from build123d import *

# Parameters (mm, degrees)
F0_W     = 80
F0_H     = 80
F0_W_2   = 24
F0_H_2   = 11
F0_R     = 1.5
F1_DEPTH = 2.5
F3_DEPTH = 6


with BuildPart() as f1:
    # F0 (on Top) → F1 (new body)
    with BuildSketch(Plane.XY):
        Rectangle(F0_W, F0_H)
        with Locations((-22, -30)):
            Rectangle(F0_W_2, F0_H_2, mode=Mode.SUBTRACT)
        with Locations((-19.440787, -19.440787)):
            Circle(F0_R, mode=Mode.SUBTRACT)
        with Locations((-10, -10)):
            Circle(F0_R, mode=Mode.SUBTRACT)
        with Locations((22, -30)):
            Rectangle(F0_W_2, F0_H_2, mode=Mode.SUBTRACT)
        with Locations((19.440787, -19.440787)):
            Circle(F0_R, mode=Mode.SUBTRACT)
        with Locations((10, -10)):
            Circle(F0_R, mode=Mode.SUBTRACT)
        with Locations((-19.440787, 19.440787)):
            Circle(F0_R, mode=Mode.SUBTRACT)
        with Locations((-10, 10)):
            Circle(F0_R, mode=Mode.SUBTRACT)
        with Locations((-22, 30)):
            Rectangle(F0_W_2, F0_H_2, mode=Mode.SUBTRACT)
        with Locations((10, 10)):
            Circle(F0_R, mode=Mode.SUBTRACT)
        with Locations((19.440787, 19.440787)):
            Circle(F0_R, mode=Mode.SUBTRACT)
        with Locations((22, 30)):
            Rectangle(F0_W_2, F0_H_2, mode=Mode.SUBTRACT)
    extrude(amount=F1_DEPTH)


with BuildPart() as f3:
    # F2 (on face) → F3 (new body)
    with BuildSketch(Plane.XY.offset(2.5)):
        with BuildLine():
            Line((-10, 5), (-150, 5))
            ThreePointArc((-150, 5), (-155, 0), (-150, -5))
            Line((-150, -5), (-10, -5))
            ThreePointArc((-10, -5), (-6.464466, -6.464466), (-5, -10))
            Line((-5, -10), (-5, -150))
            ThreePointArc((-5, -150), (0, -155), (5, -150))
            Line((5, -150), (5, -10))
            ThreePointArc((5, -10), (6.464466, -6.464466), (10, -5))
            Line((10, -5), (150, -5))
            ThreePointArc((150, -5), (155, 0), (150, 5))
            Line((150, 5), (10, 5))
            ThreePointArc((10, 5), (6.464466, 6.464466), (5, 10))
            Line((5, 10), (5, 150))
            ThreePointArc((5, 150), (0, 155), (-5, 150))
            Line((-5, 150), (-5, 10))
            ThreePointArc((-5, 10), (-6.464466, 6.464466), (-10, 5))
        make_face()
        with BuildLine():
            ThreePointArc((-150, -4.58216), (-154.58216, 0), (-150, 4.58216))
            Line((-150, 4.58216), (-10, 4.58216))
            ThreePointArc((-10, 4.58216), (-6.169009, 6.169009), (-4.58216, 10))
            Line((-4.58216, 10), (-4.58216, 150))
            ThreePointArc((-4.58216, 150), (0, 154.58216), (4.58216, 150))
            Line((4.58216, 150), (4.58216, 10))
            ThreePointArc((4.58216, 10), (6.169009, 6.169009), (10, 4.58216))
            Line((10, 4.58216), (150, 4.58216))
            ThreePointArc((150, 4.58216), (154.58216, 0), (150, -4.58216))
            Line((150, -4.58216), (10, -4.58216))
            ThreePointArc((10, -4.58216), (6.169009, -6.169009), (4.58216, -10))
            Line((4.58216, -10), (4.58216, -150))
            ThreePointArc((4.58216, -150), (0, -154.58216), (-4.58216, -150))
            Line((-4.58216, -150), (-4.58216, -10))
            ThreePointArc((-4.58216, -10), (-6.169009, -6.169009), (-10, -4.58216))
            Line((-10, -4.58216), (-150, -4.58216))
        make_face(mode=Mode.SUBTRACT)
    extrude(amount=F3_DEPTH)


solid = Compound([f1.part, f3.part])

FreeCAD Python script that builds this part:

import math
import FreeCAD as App
import Part
import Sketcher

V = App.Vector

doc = App.newDocument("Part")
body = doc.addObject("PartDesign::Body", "Body")

# Sketch on XY plane
sketch1 = body.newObject("Sketcher::SketchObject", "Sketch")
sketch1.AttachmentSupport = (doc.getObject("XY_Plane"), [""])
sketch1.MapMode = "FlatFace"
sketch1.addGeometry([
    Part.LineSegment(V(-40, 40, 0), V(-40, -40, 0)),  # 0
    Part.LineSegment(V(-40, -40, 0), V(40, -40, 0)),  # 1
    Part.LineSegment(V(40, -40, 0), V(40, 40, 0)),  # 2
    Part.LineSegment(V(40, 40, 0), V(-40, 40, 0)),  # 3
    Part.LineSegment(V(-10, -35.5, 0), V(-34, -35.5, 0)),  # 4
    Part.LineSegment(V(-34, -35.5, 0), V(-34, -24.5, 0)),  # 5
    Part.LineSegment(V(-34, -24.5, 0), V(-10, -24.5, 0)),  # 6
    Part.LineSegment(V(-10, -24.5, 0), V(-10, -35.5, 0)),  # 7
    Part.Circle(V(-19.4, -19.4, 0), V(0, 0, 1), 1.5),  # 8
    Part.Circle(V(-10, -10, 0), V(0, 0, 1), 1.5),  # 9
    Part.LineSegment(V(34, -35.5, 0), V(10, -35.5, 0)),  # 10
    Part.LineSegment(V(10, -35.5, 0), V(10, -24.5, 0)),  # 11
    Part.LineSegment(V(10, -24.5, 0), V(34, -24.5, 0)),  # 12
    Part.LineSegment(V(34, -24.5, 0), V(34, -35.5, 0)),  # 13
    Part.Circle(V(19.4, -19.4, 0), V(0, 0, 1), 1.5),  # 14
    Part.Circle(V(10, -10, 0), V(0, 0, 1), 1.5),  # 15
    Part.Circle(V(-10, 10, 0), V(0, 0, 1), 1.5),  # 16
    Part.Circle(V(-19.4, 19.4, 0), V(0, 0, 1), 1.5),  # 17
    Part.LineSegment(V(-10, 24.5, 0), V(-34, 24.5, 0)),  # 18
    Part.LineSegment(V(-34, 24.5, 0), V(-34, 35.5, 0)),  # 19
    Part.LineSegment(V(-34, 35.5, 0), V(-10, 35.5, 0)),  # 20
    Part.LineSegment(V(-10, 35.5, 0), V(-10, 24.5, 0)),  # 21
    Part.Circle(V(10, 10, 0), V(0, 0, 1), 1.5),  # 22
    Part.Circle(V(19.4, 19.4, 0), V(0, 0, 1), 1.5),  # 23
    Part.LineSegment(V(34, 24.5, 0), V(10, 24.5, 0)),  # 24
    Part.LineSegment(V(10, 24.5, 0), V(10, 35.5, 0)),  # 25
    Part.LineSegment(V(10, 35.5, 0), V(34, 35.5, 0)),  # 26
    Part.LineSegment(V(34, 35.5, 0), V(34, 24.5, 0)),  # 27
], False)
sketch1.addConstraint([
    Sketcher.Constraint("Coincident", 0, 2, 1, 1),
    Sketcher.Constraint("Coincident", 1, 2, 2, 1),
    Sketcher.Constraint("Coincident", 2, 2, 3, 1),
    Sketcher.Constraint("Coincident", 3, 2, 0, 1),
    Sketcher.Constraint("Coincident", 4, 2, 5, 1),
    Sketcher.Constraint("Coincident", 5, 2, 6, 1),
    Sketcher.Constraint("Coincident", 6, 2, 7, 1),
    Sketcher.Constraint("Coincident", 7, 2, 4, 1),
    Sketcher.Constraint("Coincident", 10, 2, 11, 1),
    Sketcher.Constraint("Coincident", 11, 2, 12, 1),
    Sketcher.Constraint("Coincident", 12, 2, 13, 1),
    Sketcher.Constraint("Coincident", 13, 2, 10, 1),
    Sketcher.Constraint("Coincident", 18, 2, 19, 1),
    Sketcher.Constraint("Coincident", 19, 2, 20, 1),
    Sketcher.Constraint("Coincident", 20, 2, 21, 1),
    Sketcher.Constraint("Coincident", 21, 2, 18, 1),
    Sketcher.Constraint("Coincident", 24, 2, 25, 1),
    Sketcher.Constraint("Coincident", 25, 2, 26, 1),
    Sketcher.Constraint("Coincident", 26, 2, 27, 1),
    Sketcher.Constraint("Coincident", 27, 2, 24, 1),
    Sketcher.Constraint("Vertical", 0),
    Sketcher.Constraint("Horizontal", 1),
    Sketcher.Constraint("Vertical", 2),
    Sketcher.Constraint("Horizontal", 3),
    Sketcher.Constraint("Horizontal", 4),
    Sketcher.Constraint("Vertical", 5),
    Sketcher.Constraint("Horizontal", 6),
    Sketcher.Constraint("Vertical", 7),
    Sketcher.Constraint("Horizontal", 10),
    Sketcher.Constraint("Vertical", 11),
    Sketcher.Constraint("Horizontal", 12),
    Sketcher.Constraint("Vertical", 13),
    Sketcher.Constraint("Horizontal", 18),
    Sketcher.Constraint("Vertical", 19),
    Sketcher.Constraint("Horizontal", 20),
    Sketcher.Constraint("Vertical", 21),
    Sketcher.Constraint("Horizontal", 24),
    Sketcher.Constraint("Vertical", 25),
    Sketcher.Constraint("Horizontal", 26),
    Sketcher.Constraint("Vertical", 27),
    Sketcher.Constraint("Equal", 8, 9),
    Sketcher.Constraint("Equal", 9, 14),
    Sketcher.Constraint("Equal", 14, 15),
    Sketcher.Constraint("Equal", 15, 16),
    Sketcher.Constraint("Equal", 16, 17),
    Sketcher.Constraint("Equal", 17, 22),
    Sketcher.Constraint("Equal", 22, 23),
    Sketcher.Constraint("Symmetric", 15, 3, 16, 3, -1, 1),
    Sketcher.Constraint("Symmetric", 14, 3, 17, 3, -1, 1),
    Sketcher.Constraint("Symmetric", 9, 3, 22, 3, -1, 1),
    Sketcher.Constraint("Symmetric", 8, 3, 23, 3, -1, 1),
    Sketcher.Constraint("Symmetric", 0, 2, 2, 2, -1, 1),
    Sketcher.Constraint("Symmetric", 12, 2, 18, 2, -1, 1),
    Sketcher.Constraint("Symmetric", 10, 2, 20, 2, -1, 1),
    Sketcher.Constraint("Symmetric", 6, 2, 24, 2, -1, 1),
    Sketcher.Constraint("Symmetric", 4, 2, 26, 2, -1, 1),
    Sketcher.Constraint("Symmetric", 8, 3, 14, 3, -2),
    Sketcher.Constraint("Symmetric", 9, 3, 15, 3, -2),
    Sketcher.Constraint("Symmetric", 7, 2, 10, 2, -2),
    Sketcher.Constraint("Symmetric", 5, 2, 12, 2, -2),
    Sketcher.Constraint("Vertical", 16, 3, 6, 2),
    Sketcher.Constraint("Equal", 3, 0),
    Sketcher.Constraint("Diameter", 8, 3.0),
    Sketcher.Constraint("DistanceX", 1, 1, 1, 2, 80.0),
    Sketcher.Constraint("DistanceX", 4, 2, 4, 1, 24.0),
    Sketcher.Constraint("DistanceY", 5, 1, 5, 2, 11.0),
    Sketcher.Constraint("DistanceX", 9, 3, -1, 1, 10.0),
    Sketcher.Constraint("DistanceY", 9, 3, -1, 1, 10.0),
    Sketcher.Constraint("DistanceY", 4, 2, -1, 1, 35.5),
    Sketcher.Constraint("DistanceX", 8, 3, -1, 1, 19.440787),
    Sketcher.Constraint("DistanceY", 8, 3, -1, 1, 19.440787),
])
pad1 = body.newObject("PartDesign::Pad", "Pad")
pad1.Profile = sketch1
pad1.Length = 2.5
body2 = doc.addObject("PartDesign::Body", "Body001")

# Sketch on XY plane
sketch2 = body2.newObject("Sketcher::SketchObject", "Sketch001")
sketch2.AttachmentSupport = (doc.getObject("XY_Plane001"), [""])
sketch2.MapMode = "FlatFace"
sketch2.AttachmentOffset = App.Placement(V(0, 0, 2.5), App.Rotation())
sketch2.addGeometry([
    Part.LineSegment(V(-10, 5, 0), V(-150, 5, 0)),  # 0
    Part.ArcOfCircle(Part.Circle(V(-150, 0, 0), V(0, 0, 1), 5), math.radians(90), math.radians(270)),  # 1
    Part.LineSegment(V(-150, -5, 0), V(-10, -5, 0)),  # 2
    Part.ArcOfCircle(Part.Circle(V(-10, -10, 0), V(0, 0, 1), 5), math.radians(0), math.radians(90)),  # 3
    Part.LineSegment(V(-5, -10, 0), V(-5, -150, 0)),  # 4
    Part.ArcOfCircle(Part.Circle(V(0, -150, 0), V(0, 0, 1), 5), math.radians(180), math.radians(360)),  # 5
    Part.LineSegment(V(5, -150, 0), V(5, -10, 0)),  # 6
    Part.ArcOfCircle(Part.Circle(V(10, -10, 0), V(0, 0, 1), 5), math.radians(90), math.radians(180)),  # 7
    Part.LineSegment(V(10, -5, 0), V(150, -5, 0)),  # 8
    Part.ArcOfCircle(Part.Circle(V(150, 0, 0), V(0, 0, 1), 5), math.radians(-90), math.radians(90)),  # 9
    Part.LineSegment(V(150, 5, 0), V(10, 5, 0)),  # 10
    Part.ArcOfCircle(Part.Circle(V(10, 10, 0), V(0, 0, 1), 5), math.radians(180), math.radians(270)),  # 11
    Part.LineSegment(V(5, 10, 0), V(5, 150, 0)),  # 12
    Part.ArcOfCircle(Part.Circle(V(0, 150, 0), V(0, 0, 1), 5), math.radians(0), math.radians(180)),  # 13
    Part.LineSegment(V(-5, 150, 0), V(-5, 10, 0)),  # 14
    Part.ArcOfCircle(Part.Circle(V(-10, 10, 0), V(0, 0, 1), 5), math.radians(-90), math.radians(0)),  # 15
    Part.LineSegment(V(-10, -4.6, 0), V(-150, -4.6, 0)),  # 16
    Part.ArcOfCircle(Part.Circle(V(-150, 0, 0), V(0, 0, 1), 4.6), math.radians(90), math.radians(270)),  # 17
    Part.LineSegment(V(-150, 4.6, 0), V(-10, 4.6, 0)),  # 18
    Part.ArcOfCircle(Part.Circle(V(-10, 10, 0), V(0, 0, 1), 5.4), math.radians(-90), math.radians(0)),  # 19
    Part.LineSegment(V(-4.6, 10, 0), V(-4.6, 150, 0)),  # 20
    Part.ArcOfCircle(Part.Circle(V(0, 150, 0), V(0, 0, 1), 4.6), math.radians(0), math.radians(180)),  # 21
    Part.LineSegment(V(4.6, 150, 0), V(4.6, 10, 0)),  # 22
    Part.ArcOfCircle(Part.Circle(V(10, 10, 0), V(0, 0, 1), 5.4), math.radians(-180), math.radians(-90)),  # 23
    Part.LineSegment(V(10, 4.6, 0), V(150, 4.6, 0)),  # 24
    Part.ArcOfCircle(Part.Circle(V(150, 0, 0), V(0, 0, 1), 4.6), math.radians(-90), math.radians(90)),  # 25
    Part.LineSegment(V(150, -4.6, 0), V(10, -4.6, 0)),  # 26
    Part.ArcOfCircle(Part.Circle(V(10, -10, 0), V(0, 0, 1), 5.4), math.radians(90), math.radians(180)),  # 27
    Part.LineSegment(V(4.6, -10, 0), V(4.6, -150, 0)),  # 28
    Part.ArcOfCircle(Part.Circle(V(0, -150, 0), V(0, 0, 1), 4.6), math.radians(180), math.radians(360)),  # 29
    Part.LineSegment(V(-4.6, -150, 0), V(-4.6, -10, 0)),  # 30
    Part.ArcOfCircle(Part.Circle(V(-10, -10, 0), V(0, 0, 1), 5.4), math.radians(0), math.radians(90)),  # 31
], False)
sketch2.addConstraint([
    Sketcher.Constraint("Tangent", 0, 2, 1, 1),
    Sketcher.Constraint("Tangent", 1, 2, 2, 1),
    Sketcher.Constraint("Tangent", 2, 2, 3, 2),
    Sketcher.Constraint("Tangent", 3, 1, 4, 1),
    Sketcher.Constraint("Tangent", 4, 2, 5, 1),
    Sketcher.Constraint("Tangent", 5, 2, 6, 1),
    Sketcher.Constraint("Tangent", 6, 2, 7, 2),
    Sketcher.Constraint("Tangent", 7, 1, 8, 1),
    Sketcher.Constraint("Tangent", 8, 2, 9, 1),
    Sketcher.Constraint("Tangent", 9, 2, 10, 1),
    Sketcher.Constraint("Tangent", 10, 2, 11, 2),
    Sketcher.Constraint("Tangent", 11, 1, 12, 1),
    Sketcher.Constraint("Tangent", 12, 2, 13, 1),
    Sketcher.Constraint("Tangent", 13, 2, 14, 1),
    Sketcher.Constraint("Tangent", 14, 2, 15, 2),
    Sketcher.Constraint("Tangent", 15, 1, 0, 1),
    Sketcher.Constraint("Tangent", 16, 2, 17, 2),
    Sketcher.Constraint("Tangent", 17, 1, 18, 1),
    Sketcher.Constraint("Tangent", 18, 2, 19, 1),
    Sketcher.Constraint("Tangent", 19, 2, 20, 1),
    Sketcher.Constraint("Tangent", 20, 2, 21, 2),
    Sketcher.Constraint("Tangent", 21, 1, 22, 1),
    Sketcher.Constraint("Tangent", 22, 2, 23, 1),
    Sketcher.Constraint("Tangent", 23, 2, 24, 1),
    Sketcher.Constraint("Tangent", 24, 2, 25, 2),
    Sketcher.Constraint("Tangent", 25, 1, 26, 1),
    Sketcher.Constraint("Tangent", 26, 2, 27, 1),
    Sketcher.Constraint("Tangent", 27, 2, 28, 1),
    Sketcher.Constraint("Tangent", 28, 2, 29, 2),
    Sketcher.Constraint("Tangent", 29, 1, 30, 1),
    Sketcher.Constraint("Tangent", 30, 2, 31, 1),
    Sketcher.Constraint("Tangent", 31, 2, 16, 1),
    Sketcher.Constraint("Horizontal", 0),
    Sketcher.Constraint("Horizontal", 2),
    Sketcher.Constraint("Vertical", 4),
    Sketcher.Constraint("Vertical", 6),
    Sketcher.Constraint("Horizontal", 8),
    Sketcher.Constraint("Horizontal", 10),
    Sketcher.Constraint("Vertical", 12),
    Sketcher.Constraint("Vertical", 14),
    Sketcher.Constraint("Horizontal", 16),
    Sketcher.Constraint("Horizontal", 18),
    Sketcher.Constraint("Vertical", 20),
    Sketcher.Constraint("Vertical", 22),
    Sketcher.Constraint("Horizontal", 24),
    Sketcher.Constraint("Horizontal", 26),
    Sketcher.Constraint("Vertical", 28),
    Sketcher.Constraint("Vertical", 30),
    Sketcher.Constraint("Coincident", 17, 3, 1, 3),
    Sketcher.Constraint("Coincident", 19, 3, 15, 3),
    Sketcher.Constraint("Coincident", 21, 3, 13, 3),
    Sketcher.Constraint("Coincident", 23, 3, 11, 3),
    Sketcher.Constraint("Coincident", 25, 3, 9, 3),
    Sketcher.Constraint("Coincident", 27, 3, 7, 3),
    Sketcher.Constraint("Coincident", 29, 3, 5, 3),
    Sketcher.Constraint("Equal", 1, 3),
    Sketcher.Constraint("Equal", 3, 5),
    Sketcher.Constraint("Equal", 5, 7),
    Sketcher.Constraint("Equal", 7, 9),
    Sketcher.Constraint("Equal", 9, 11),
    Sketcher.Constraint("Equal", 11, 13),
    Sketcher.Constraint("Equal", 13, 15),
    Sketcher.Constraint("Equal", 27, 31),
    Sketcher.Constraint("Symmetric", 1, 3, 9, 3, -1, 1),
    Sketcher.Constraint("Symmetric", 5, 3, 13, 3, -1, 1),
    Sketcher.Constraint("Symmetric", 3, 3, 7, 3, -2),
    Sketcher.Constraint("Equal", 26, 4),
    Sketcher.Constraint("Radius", 1, 5.0),
    Sketcher.Constraint("DistanceX", 0, 2, 0, 1, 140.0),
    Sketcher.Constraint("Radius", 17, 4.58216),
])
pad2 = body2.newObject("PartDesign::Pad", "Pad001")
pad2.Profile = sketch2
pad2.Length = 6

doc.recompute()
